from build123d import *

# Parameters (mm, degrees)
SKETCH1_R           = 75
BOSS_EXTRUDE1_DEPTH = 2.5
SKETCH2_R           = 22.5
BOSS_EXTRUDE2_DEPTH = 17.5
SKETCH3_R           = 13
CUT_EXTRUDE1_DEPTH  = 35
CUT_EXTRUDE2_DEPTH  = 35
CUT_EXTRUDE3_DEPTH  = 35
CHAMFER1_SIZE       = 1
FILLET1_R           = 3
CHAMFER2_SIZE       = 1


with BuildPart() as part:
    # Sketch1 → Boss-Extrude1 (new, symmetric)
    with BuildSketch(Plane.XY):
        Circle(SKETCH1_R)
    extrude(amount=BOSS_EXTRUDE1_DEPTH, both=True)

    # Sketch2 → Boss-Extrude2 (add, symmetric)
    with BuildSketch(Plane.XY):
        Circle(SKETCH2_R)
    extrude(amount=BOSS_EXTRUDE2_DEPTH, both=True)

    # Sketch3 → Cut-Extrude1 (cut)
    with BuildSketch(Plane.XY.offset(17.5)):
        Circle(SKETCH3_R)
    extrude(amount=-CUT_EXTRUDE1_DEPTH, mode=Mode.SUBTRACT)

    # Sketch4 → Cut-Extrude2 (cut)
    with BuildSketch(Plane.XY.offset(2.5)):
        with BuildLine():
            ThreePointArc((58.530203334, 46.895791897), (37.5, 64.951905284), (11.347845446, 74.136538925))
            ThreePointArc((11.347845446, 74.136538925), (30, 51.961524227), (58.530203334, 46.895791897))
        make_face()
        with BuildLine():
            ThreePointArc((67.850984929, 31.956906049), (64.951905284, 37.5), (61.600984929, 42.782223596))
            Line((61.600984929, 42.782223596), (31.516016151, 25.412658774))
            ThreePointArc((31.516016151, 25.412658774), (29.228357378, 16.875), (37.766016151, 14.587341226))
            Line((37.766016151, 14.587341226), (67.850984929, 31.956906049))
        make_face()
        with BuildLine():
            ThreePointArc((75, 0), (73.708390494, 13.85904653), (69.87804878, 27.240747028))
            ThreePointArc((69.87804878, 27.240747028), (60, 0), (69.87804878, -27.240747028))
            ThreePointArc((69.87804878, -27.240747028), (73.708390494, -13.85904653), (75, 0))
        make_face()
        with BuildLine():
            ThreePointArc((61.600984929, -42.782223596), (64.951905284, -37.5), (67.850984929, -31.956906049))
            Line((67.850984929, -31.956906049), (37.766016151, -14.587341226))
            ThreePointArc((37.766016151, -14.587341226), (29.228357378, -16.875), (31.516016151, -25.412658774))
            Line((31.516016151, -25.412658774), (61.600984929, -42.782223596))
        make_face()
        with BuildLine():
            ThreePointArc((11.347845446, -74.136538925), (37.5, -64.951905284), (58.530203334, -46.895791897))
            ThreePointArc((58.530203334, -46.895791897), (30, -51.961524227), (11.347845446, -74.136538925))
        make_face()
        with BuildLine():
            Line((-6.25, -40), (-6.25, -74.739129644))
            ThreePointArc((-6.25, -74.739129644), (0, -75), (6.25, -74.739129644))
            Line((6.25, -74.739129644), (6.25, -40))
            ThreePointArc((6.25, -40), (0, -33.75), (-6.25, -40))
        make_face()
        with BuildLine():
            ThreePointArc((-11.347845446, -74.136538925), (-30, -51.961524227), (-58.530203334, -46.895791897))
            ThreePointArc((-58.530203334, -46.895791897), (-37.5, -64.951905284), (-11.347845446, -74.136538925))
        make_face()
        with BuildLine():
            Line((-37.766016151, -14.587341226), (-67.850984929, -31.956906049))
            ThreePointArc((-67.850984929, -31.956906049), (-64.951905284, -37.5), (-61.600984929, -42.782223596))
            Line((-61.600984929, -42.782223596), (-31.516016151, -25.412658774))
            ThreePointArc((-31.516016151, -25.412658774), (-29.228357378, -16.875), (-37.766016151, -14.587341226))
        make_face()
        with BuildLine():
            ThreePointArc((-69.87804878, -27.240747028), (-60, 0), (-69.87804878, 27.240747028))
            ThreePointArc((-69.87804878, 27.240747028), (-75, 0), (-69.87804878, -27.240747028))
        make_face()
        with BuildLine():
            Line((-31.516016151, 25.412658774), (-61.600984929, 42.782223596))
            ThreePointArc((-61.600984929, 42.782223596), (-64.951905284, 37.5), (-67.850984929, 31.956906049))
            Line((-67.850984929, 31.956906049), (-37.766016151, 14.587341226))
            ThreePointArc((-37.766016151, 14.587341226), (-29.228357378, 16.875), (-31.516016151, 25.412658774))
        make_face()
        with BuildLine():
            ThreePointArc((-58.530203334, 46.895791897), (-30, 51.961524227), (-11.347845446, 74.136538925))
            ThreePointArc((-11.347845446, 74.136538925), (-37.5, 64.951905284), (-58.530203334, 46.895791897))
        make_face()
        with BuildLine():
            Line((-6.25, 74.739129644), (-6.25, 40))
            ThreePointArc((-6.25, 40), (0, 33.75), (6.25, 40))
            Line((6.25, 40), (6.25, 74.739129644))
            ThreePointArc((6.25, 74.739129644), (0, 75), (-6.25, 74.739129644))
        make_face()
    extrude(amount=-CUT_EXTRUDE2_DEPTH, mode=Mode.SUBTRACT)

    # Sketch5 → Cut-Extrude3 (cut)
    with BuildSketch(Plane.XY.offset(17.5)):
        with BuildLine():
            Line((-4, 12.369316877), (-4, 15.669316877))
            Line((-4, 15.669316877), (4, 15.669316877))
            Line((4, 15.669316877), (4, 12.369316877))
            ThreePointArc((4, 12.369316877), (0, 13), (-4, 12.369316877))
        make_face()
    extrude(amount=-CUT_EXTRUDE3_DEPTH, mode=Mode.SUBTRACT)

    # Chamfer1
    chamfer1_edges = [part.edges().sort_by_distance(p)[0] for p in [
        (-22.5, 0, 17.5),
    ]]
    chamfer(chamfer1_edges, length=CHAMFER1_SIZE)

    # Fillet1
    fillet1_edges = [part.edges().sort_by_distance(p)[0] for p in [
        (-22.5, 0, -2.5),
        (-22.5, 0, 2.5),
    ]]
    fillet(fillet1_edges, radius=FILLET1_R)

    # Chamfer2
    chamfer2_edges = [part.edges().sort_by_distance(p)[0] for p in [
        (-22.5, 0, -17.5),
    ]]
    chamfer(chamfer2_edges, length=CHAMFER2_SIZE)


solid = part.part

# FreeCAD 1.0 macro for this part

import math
import FreeCAD as App
import Part
import Sketcher
from FreeCAD import Vector
Q = App.Units.Quantity


def edges_at(feature, points):
    """Names of the edges that pass closest to the given points."""
    edges = feature.Shape.Edges
    near = lambda p: min(range(len(edges)), key=lambda i: edges[i].distToShape(Part.Vertex(*p))[0])
    return sorted({f"Edge{near(p) + 1}" for p in points})

doc = App.newDocument("Part")
params = doc.addObject("Spreadsheet::Sheet", "Params")
for row, (alias, value) in enumerate([
    ("sketch1_diameter", "150 mm"),
    ("pad1_length", "5 mm"),
    ("sketch2_diameter", "45 mm"),
    ("pad2_length", "35 mm"),
    ("sketch3_diameter", "26 mm"),
    ("pocket1_length", "35 mm"),
    ("sketch4_radius", "75 mm"),
    ("sketch4_radius2", "42.5 mm"),
    ("sketch4_radius3", "6.25 mm"),
    ("pocket2_length", "35 mm"),
    ("sketch5_radius", "13 mm"),
    ("sketch5_width", "8 mm"),
    ("sketch5_height", "3.3 mm"),
    ("pocket3_length", "35 mm"),
    ("chamfer_size", "1 mm"),
    ("fillet_radius", "3 mm"),
    ("chamfer2_size", "1 mm"),
], start=1):
    params.set(f"A{row}", alias)
    params.set(f"B{row}", "=" + value)
    params.setAlias(f"B{row}", alias)

body = doc.addObject("PartDesign::Body", "Body")

# Sketch on XY plane
sketch1 = body.newObject("Sketcher::SketchObject", "Sketch")
sketch1.AttachmentSupport = (doc.getObject("XY_Plane"), [""])
sketch1.MapMode = "FlatFace"
sketch1.addGeometry(Part.Circle(Vector(0, 0, 0), Vector(0, 0, 1), 75), False)
sketch1.addConstraint(Sketcher.Constraint("Coincident", 0, 3, -1, 1))
sketch1.addConstraint(Sketcher.Constraint("Diameter", 0, 150.0))
sketch1.setExpression("Constraints[1]", "Params.sketch1_diameter")
pad1 = body.newObject("PartDesign::Pad", "Pad")
pad1.Profile = sketch1
pad1.setExpression("Length", "Params.pad1_length")
pad1.Midplane = True

# Sketch on XY plane
sketch2 = body.newObject("Sketcher::SketchObject", "Sketch001")
sketch2.AttachmentSupport = (doc.getObject("XY_Plane"), [""])
sketch2.MapMode = "FlatFace"
sketch2.addGeometry(Part.Circle(Vector(0, 0, 0), Vector(0, 0, 1), 22), False)
sketch2.addConstraint(Sketcher.Constraint("Coincident", 0, 3, -1, 1))
sketch2.addConstraint(Sketcher.Constraint("Diameter", 0, 45.0))
sketch2.setExpression("Constraints[1]", "Params.sketch2_diameter")
pad2 = body.newObject("PartDesign::Pad", "Pad001")
pad2.Profile = sketch2
pad2.setExpression("Length", "Params.pad2_length")
pad2.Midplane = True

# Sketch on XY plane
sketch3 = body.newObject("Sketcher::SketchObject", "Sketch002")
sketch3.AttachmentSupport = (doc.getObject("XY_Plane"), [""])
sketch3.MapMode = "FlatFace"
sketch3.AttachmentOffset = App.Placement(Vector(0, 0, 17.5), App.Rotation())
sketch3.addGeometry(Part.Circle(Vector(0, 0, 0), Vector(0, 0, 1), 13), False)
sketch3.addConstraint(Sketcher.Constraint("Coincident", 0, 3, -1, 1))
sketch3.addConstraint(Sketcher.Constraint("Diameter", 0, 26.0))
sketch3.setExpression("Constraints[1]", "Params.sketch3_diameter")
pocket1 = body.newObject("PartDesign::Pocket", "Pocket")
pocket1.Profile = sketch3
pocket1.setExpression("Length", "Params.pocket1_length")

# Sketch on XY plane
sketch4 = body.newObject("Sketcher::SketchObject", "Sketch003")
sketch4.AttachmentSupport = (doc.getObject("XY_Plane"), [""])
sketch4.MapMode = "FlatFace"
sketch4.AttachmentOffset = App.Placement(Vector(0, 0, 2.5), App.Rotation())
sketch4.addGeometry(Part.ArcOfCircle(Part.Circle(Vector(0, 0, 0), Vector(0, 0, 1), 75), math.radians(39), math.radians(81)), False)
sketch4.addGeometry(Part.ArcOfCircle(Part.Circle(Vector(51, 89, 0), Vector(0, 0, 1), 42), math.radians(-160), math.radians(-80)), False)
sketch4.addGeometry(Part.ArcOfCircle(Part.Circle(Vector(0, 0, 0), Vector(0, 0, 1), 75), math.radians(25.22), math.radians(34.78)), False)
sketch4.addGeometry(Part.LineSegment(Vector(62, 43, 0), Vector(32, 25, 0)), False)
sketch4.addGeometry(Part.ArcOfCircle(Part.Circle(Vector(35, 20, 0), Vector(0, 0, 1), 6), math.radians(120), math.radians(300)), False)
sketch4.addGeometry(Part.LineSegment(Vector(38, 15, 0), Vector(68, 32, 0)), False)
sketch4.addGeometry(Part.ArcOfCircle(Part.Circle(Vector(0, 0, 0), Vector(0, 0, 1), 75), math.radians(0), math.radians(21)), False)
sketch4.addGeometry(Part.ArcOfCircle(Part.Circle(Vector(103, 0, 0), Vector(0, 0, 1), 43), math.radians(140), math.radians(220)), False)
sketch4.addGeometry(Part.ArcOfCircle(Part.Circle(Vector(0, 0, 0), Vector(0, 0, 1), 75), math.radians(-21), math.radians(0)), False)
sketch4.addGeometry(Part.ArcOfCircle(Part.Circle(Vector(0, 0, 0), Vector(0, 0, 1), 75), math.radians(-34.78), math.radians(-25.22)), False)
sketch4.addGeometry(Part.LineSegment(Vector(68, -32, 0), Vector(38, -15, 0)), False)
sketch4.addGeometry(Part.ArcOfCircle(Part.Circle(Vector(35, -20, 0), Vector(0, 0, 1), 6), math.radians(60), math.radians(240)), False)
sketch4.addGeometry(Part.LineSegment(Vector(32, -25, 0), Vector(62, -43, 0)), False)
sketch4.addGeometry(Part.ArcOfCircle(Part.Circle(Vector(0, 0, 0), Vector(0, 0, 1), 75), math.radians(-81), math.radians(-39)), False)
sketch4.addGeometry(Part.ArcOfCircle(Part.Circle(Vector(51, -89, 0), Vector(0, 0, 1), 42), math.radians(80), math.radians(160)), False)
sketch4.addGeometry(Part.LineSegment(Vector(-6, -40, 0), Vector(-6, -75, 0)), False)
sketch4.addGeometry(Part.ArcOfCircle(Part.Circle(Vector(0, 0, 0), Vector(0, 0, 1), 75), math.radians(-94.78), math.radians(-85.22)), False)
sketch4.addGeometry(Part.LineSegment(Vector(6, -75, 0), Vector(6, -40, 0)), False)
sketch4.addGeometry(Part.ArcOfCircle(Part.Circle(Vector(0, -40, 0), Vector(0, 0, 1), 6), math.radians(0), math.radians(180)), False)
sketch4.addGeometry(Part.ArcOfCircle(Part.Circle(Vector(-51, -89, 0), Vector(0, 0, 1), 42), math.radians(20), math.radians(100)), False)
sketch4.addGeometry(Part.ArcOfCircle(Part.Circle(Vector(0, 0, 0), Vector(0, 0, 1), 75), math.radians(-141), math.radians(-99)), False)
sketch4.addGeometry(Part.LineSegment(Vector(-38, -15, 0), Vector(-68, -32, 0)), False)
sketch4.addGeometry(Part.ArcOfCircle(Part.Circle(Vector(0, 0, 0), Vector(0, 0, 1), 75), math.radians(-154.78), math.radians(-145.22)), False)
sketch4.addGeometry(Part.LineSegment(Vector(-62, -43, 0), Vector(-32, -25, 0)), False)
sketch4.addGeometry(Part.ArcOfCircle(Part.Circle(Vector(-35, -20, 0), Vector(0, 0, 1), 6), math.radians(-60), math.radians(120)), False)
sketch4.addGeometry(Part.ArcOfCircle(Part.Circle(Vector(-103, 0, 0), Vector(0, 0, 1), 43), math.radians(-40), math.radians(40)), False)
sketch4.addGeometry(Part.ArcOfCircle(Part.Circle(Vector(0, 0, 0), Vector(0, 0, 1), 75), math.radians(159), math.radians(201)), False)
sketch4.addGeometry(Part.LineSegment(Vector(-32, 25, 0), Vector(-62, 43, 0)), False)
sketch4.addGeometry(Part.ArcOfCircle(Part.Circle(Vector(0, 0, 0), Vector(0, 0, 1), 75), math.radians(145.22), math.radians(154.78)), False)
sketch4.addGeometry(Part.LineSegment(Vector(-68, 32, 0), Vector(-38, 15, 0)), False)
sketch4.addGeometry(Part.ArcOfCircle(Part.Circle(Vector(-35, 20, 0), Vector(0, 0, 1), 6), math.radians(-120), math.radians(60)), False)
sketch4.addGeometry(Part.ArcOfCircle(Part.Circle(Vector(-51, 89, 0), Vector(0, 0, 1), 42), math.radians(-100), math.radians(-20)), False)
sketch4.addGeometry(Part.ArcOfCircle(Part.Circle(Vector(0, 0, 0), Vector(0, 0, 1), 75), math.radians(99), math.radians(141)), False)
sketch4.addGeometry(Part.LineSegment(Vector(-6, 75, 0), Vector(-6, 40, 0)), False)
sketch4.addGeometry(Part.ArcOfCircle(Part.Circle(Vector(0, 40, 0), Vector(0, 0, 1), 6), math.radians(180), math.radians(360)), False)
sketch4.addGeometry(Part.LineSegment(Vector(6, 40, 0), Vector(6, 75, 0)), False)
sketch4.addGeometry(Part.ArcOfCircle(Part.Circle(Vector(0, 0, 0), Vector(0, 0, 1), 75), math.radians(85.22), math.radians(94.78)), False)
sketch4.addConstraint(Sketcher.Constraint("Coincident", 0, 1, 1, 2))
sketch4.addConstraint(Sketcher.Constraint("Coincident", 1, 1, 0, 2))
sketch4.addConstraint(Sketcher.Constraint("Coincident", 2, 2, 3, 1))
sketch4.addConstraint(Sketcher.Constraint("Tangent", 3, 2, 4, 1))
sketch4.addConstraint(Sketcher.Constraint("Tangent", 4, 2, 5, 1))
sketch4.addConstraint(Sketcher.Constraint("Coincident", 5, 2, 2, 1))
sketch4.addConstraint(Sketcher.Constraint("Coincident", 6, 2, 7, 1))
sketch4.addConstraint(Sketcher.Constraint("Coincident", 7, 2, 8, 1))
sketch4.addConstraint(Sketcher.Constraint("Tangent", 8, 2, 6, 1))
sketch4.addConstraint(Sketcher.Constraint("Coincident", 9, 2, 10, 1))
sketch4.addConstraint(Sketcher.Constraint("Tangent", 10, 2, 11, 1))
sketch4.addConstraint(Sketcher.Constraint("Tangent", 11, 2, 12, 1))
sketch4.addConstraint(Sketcher.Constraint("Coincident", 12, 2, 9, 1))
sketch4.addConstraint(Sketcher.Constraint("Coincident", 13, 1, 14, 2))
sketch4.addConstraint(Sketcher.Constraint("Coincident", 14, 1, 13, 2))
sketch4.addConstraint(Sketcher.Constraint("Coincident", 15, 2, 16, 1))
sketch4.addConstraint(Sketcher.Constraint("Coincident", 16, 2, 17, 1))
sketch4.addConstraint(Sketcher.Constraint("Tangent", 17, 2, 18, 1))
sketch4.addConstraint(Sketcher.Constraint("Tangent", 18, 2, 15, 1))
sketch4.addConstraint(Sketcher.Constraint("Coincident", 19, 1, 20, 2))
sketch4.addConstraint(Sketcher.Constraint("Coincident", 20, 1, 19, 2))
sketch4.addConstraint(Sketcher.Constraint("Coincident", 21, 2, 22, 1))
sketch4.addConstraint(Sketcher.Constraint("Coincident", 22, 2, 23, 1))
sketch4.addConstraint(Sketcher.Constraint("Tangent", 23, 2, 24, 1))
sketch4.addConstraint(Sketcher.Constraint("Tangent", 24, 2, 21, 1))
sketch4.addConstraint(Sketcher.Constraint("Coincident", 25, 1, 26, 2))
sketch4.addConstraint(Sketcher.Constraint("Coincident", 26, 1, 25, 2))
sketch4.addConstraint(Sketcher.Constraint("Coincident", 27, 2, 28, 1))
sketch4.addConstraint(Sketcher.Constraint("Coincident", 28, 2, 29, 1))
sketch4.addConstraint(Sketcher.Constraint("Tangent", 29, 2, 30, 1))
sketch4.addConstraint(Sketcher.Constraint("Tangent", 30, 2, 27, 1))
sketch4.addConstraint(Sketcher.Constraint("Coincident", 31, 1, 32, 2))
sketch4.addConstraint(Sketcher.Constraint("Coincident", 32, 1, 31, 2))
sketch4.addConstraint(Sketcher.Constraint("Tangent", 33, 2, 34, 1))
sketch4.addConstraint(Sketcher.Constraint("Tangent", 34, 2, 35, 1))
sketch4.addConstraint(Sketcher.Constraint("Coincident", 35, 2, 36, 1))
sketch4.addConstraint(Sketcher.Constraint("Coincident", 36, 2, 33, 1))
sketch4.addConstraint(Sketcher.Constraint("Vertical", 15))
sketch4.addConstraint(Sketcher.Constraint("Vertical", 17))
sketch4.addConstraint(Sketcher.Constraint("Vertical", 33))
sketch4.addConstraint(Sketcher.Constraint("Vertical", 35))
sketch4.addConstraint(Sketcher.Constraint("Coincident", 0, 3, -1, 1))
sketch4.addConstraint(Sketcher.Constraint("Coincident", 2, 3, -1, 1))
sketch4.addConstraint(Sketcher.Constraint("Coincident", 6, 3, -1, 1))
sketch4.addConstraint(Sketcher.Constraint("Coincident", 9, 3, -1, 1))
sketch4.addConstraint(Sketcher.Constraint("Coincident", 13, 3, -1, 1))
sketch4.addConstraint(Sketcher.Constraint("Coincident", 16, 3, -1, 1))
sketch4.addConstraint(Sketcher.Constraint("Coincident", 20, 3, -1, 1))
sketch4.addConstraint(Sketcher.Constraint("Coincident", 22, 3, -1, 1))
sketch4.addConstraint(Sketcher.Constraint("Coincident", 26, 3, -1, 1))
sketch4.addConstraint(Sketcher.Constraint("Coincident", 28, 3, -1, 1))
sketch4.addConstraint(Sketcher.Constraint("Coincident", 32, 3, -1, 1))
sketch4.addConstraint(Sketcher.Constraint("Coincident", 36, 3, -1, 1))
sketch4.addConstraint(Sketcher.Constraint("Equal", 0, 2))
sketch4.addConstraint(Sketcher.Constraint("Equal", 2, 6))
sketch4.addConstraint(Sketcher.Constraint("Equal", 1, 7))
sketch4.addConstraint(Sketcher.Constraint("Equal", 6, 8))
sketch4.addConstraint(Sketcher.Constraint("Equal", 8, 9))
sketch4.addConstraint(Sketcher.Constraint("Equal", 4, 11))
sketch4.addConstraint(Sketcher.Constraint("Equal", 9, 13))
sketch4.addConstraint(Sketcher.Constraint("Equal", 7, 14))
sketch4.addConstraint(Sketcher.Constraint("Equal", 13, 16))
sketch4.addConstraint(Sketcher.Constraint("Equal", 11, 18))
sketch4.addConstraint(Sketcher.Constraint("Equal", 14, 19))
sketch4.addConstraint(Sketcher.Constraint("Equal", 16, 20))
sketch4.addConstraint(Sketcher.Constraint("Equal", 20, 22))
sketch4.addConstraint(Sketcher.Constraint("Equal", 18, 24))
sketch4.addConstraint(Sketcher.Constraint("Equal", 19, 25))
sketch4.addConstraint(Sketcher.Constraint("Equal", 22, 26))
sketch4.addConstraint(Sketcher.Constraint("Equal", 26, 28))
sketch4.addConstraint(Sketcher.Constraint("Equal", 24, 30))
sketch4.addConstraint(Sketcher.Constraint("Equal", 25, 31))
sketch4.addConstraint(Sketcher.Constraint("Equal", 28, 32))
sketch4.addConstraint(Sketcher.Constraint("Equal", 30, 34))
sketch4.addConstraint(Sketcher.Constraint("Equal", 32, 36))
sketch4.addConstraint(Sketcher.Constraint("Symmetric", 1, 3, 19, 3, -1, 1))
sketch4.addConstraint(Sketcher.Constraint("Symmetric", 4, 3, 24, 3, -1, 1))
sketch4.addConstraint(Sketcher.Constraint("Symmetric", 7, 3, 25, 3, -1, 1))
sketch4.addConstraint(Sketcher.Constraint("Symmetric", 11, 3, 30, 3, -1, 1))
sketch4.addConstraint(Sketcher.Constraint("Symmetric", 14, 3, 31, 3, -1, 1))
sketch4.addConstraint(Sketcher.Constraint("Symmetric", 18, 3, 34, 3, -1, 1))
sketch4.addConstraint(Sketcher.Constraint("Symmetric", 14, 3, 19, 3, -2))
sketch4.addConstraint(Sketcher.Constraint("Symmetric", 11, 3, 24, 3, -2))
sketch4.addConstraint(Sketcher.Constraint("PointOnObject", 7, 3, -1))
sketch4.addConstraint(Sketcher.Constraint("PointOnObject", 18, 3, -2))
sketch4.addConstraint(Sketcher.Constraint("PointOnObject", 8, 2, -1))
sketch4.addConstraint(Sketcher.Constraint("Parallel", 3, 5))
sketch4.addConstraint(Sketcher.Constraint("Parallel", 10, 12))
sketch4.addConstraint(Sketcher.Constraint("Parallel", 5, 21))
sketch4.addConstraint(Sketcher.Constraint("Parallel", 21, 23))
sketch4.addConstraint(Sketcher.Constraint("Parallel", 12, 27))
sketch4.addConstraint(Sketcher.Constraint("Parallel", 27, 29))
sketch4.addConstraint(Sketcher.Constraint("Horizontal", 9, 2, 21, 2))
sketch4.addConstraint(Sketcher.Constraint("Equal", 3, 5))
sketch4.addConstraint(Sketcher.Constraint("Radius", 0, 75.0))
sketch4.addConstraint(Sketcher.Constraint("Radius", 1, 42.5))
sketch4.addConstraint(Sketcher.Constraint("Angle", 3, Q("-150 deg")))
sketch4.addConstraint(Sketcher.Constraint("Radius", 4, 6.25))
sketch4.addConstraint(Sketcher.Constraint("DistanceY", -1, 1, 4, 3, 20.0))
sketch4.addConstraint(Sketcher.Constraint("DistanceY", 18, 3, -1, 1, 40.0))
sketch4.addConstraint(Sketcher.Constraint("DistanceX", -1, 1, 7, 3, 102.5))
sketch4.addConstraint(Sketcher.Constraint("DistanceX", -1, 1, 1, 3, 51.25))
sketch4.addConstraint(Sketcher.Constraint("DistanceY", -1, 1, 0, 1, 46.895792))
sketch4.setExpression("Constraints[94]", "Params.sketch4_radius")
sketch4.setExpression("Constraints[95]", "Params.sketch4_radius2")
sketch4.setExpression("Constraints[97]", "Params.sketch4_radius3")
pocket2 = body.newObject("PartDesign::Pocket", "Pocket001")
pocket2.Profile = sketch4
pocket2.setExpression("Length", "Params.pocket2_length")

# Sketch on XY plane
sketch5 = body.newObject("Sketcher::SketchObject", "Sketch004")
sketch5.AttachmentSupport = (doc.getObject("XY_Plane"), [""])
sketch5.MapMode = "FlatFace"
sketch5.AttachmentOffset = App.Placement(Vector(0, 0, 17.5), App.Rotation())
sketch5.addGeometry(Part.LineSegment(Vector(-4, 15.7, 0), Vector(-4, 12.4, 0)), False)
sketch5.addGeometry(Part.ArcOfCircle(Part.Circle(Vector(0, 0, 0), Vector(0, 0, 1), 13), math.radians(72), math.radians(108)), False)
sketch5.addGeometry(Part.LineSegment(Vector(4, 12.4, 0), Vector(4, 15.7, 0)), False)
sketch5.addGeometry(Part.LineSegment(Vector(4, 15.7, 0), Vector(-4, 15.7, 0)), False)
sketch5.addConstraint(Sketcher.Constraint("Coincident", 0, 2, 1, 2))
sketch5.addConstraint(Sketcher.Constraint("Coincident", 1, 1, 2, 1))
sketch5.addConstraint(Sketcher.Constraint("Coincident", 2, 2, 3, 1))
sketch5.addConstraint(Sketcher.Constraint("Coincident", 3, 2, 0, 1))
sketch5.addConstraint(Sketcher.Constraint("Vertical", 0))
sketch5.addConstraint(Sketcher.Constraint("Vertical", 2))
sketch5.addConstraint(Sketcher.Constraint("Horizontal", 3))
sketch5.addConstraint(Sketcher.Constraint("Coincident", 1, 3, -1, 1))
sketch5.addConstraint(Sketcher.Constraint("Horizontal", 0, 2, 1, 1))
sketch5.addConstraint(Sketcher.Constraint("Radius", 1, 13.0))
sketch5.addConstraint(Sketcher.Constraint("DistanceX", 3, 2, 3, 1, 8.0))
sketch5.addConstraint(Sketcher.Constraint("DistanceY", 0, 2, 0, 1, 3.3))
sketch5.setExpression("Constraints[9]", "Params.sketch5_radius")
sketch5.setExpression("Constraints[10]", "Params.sketch5_width")
sketch5.setExpression("Constraints[11]", "Params.sketch5_height")
pocket3 = body.newObject("PartDesign::Pocket", "Pocket002")
pocket3.Profile = sketch5
pocket3.setExpression("Length", "Params.pocket3_length")
doc.recompute()

chamfer = body.newObject("PartDesign::Chamfer", "Chamfer")
chamfer.Base = (pocket3, edges_at(pocket3, [(-22.5, 0, 17.5)]))
chamfer.setExpression("Size", "Params.chamfer_size")
doc.recompute()

fillet = body.newObject("PartDesign::Fillet", "Fillet")
fillet.Base = (chamfer, edges_at(chamfer, [(-22.5, 0, -2.5), (-22.5, 0, 2.5)]))
fillet.setExpression("Radius", "Params.fillet_radius")
doc.recompute()

chamfer2 = body.newObject("PartDesign::Chamfer", "Chamfer001")
chamfer2.Base = (fillet, edges_at(fillet, [(-22.5, 0, -17.5)]))
chamfer2.setExpression("Size", "Params.chamfer2_size")

doc.recompute()
